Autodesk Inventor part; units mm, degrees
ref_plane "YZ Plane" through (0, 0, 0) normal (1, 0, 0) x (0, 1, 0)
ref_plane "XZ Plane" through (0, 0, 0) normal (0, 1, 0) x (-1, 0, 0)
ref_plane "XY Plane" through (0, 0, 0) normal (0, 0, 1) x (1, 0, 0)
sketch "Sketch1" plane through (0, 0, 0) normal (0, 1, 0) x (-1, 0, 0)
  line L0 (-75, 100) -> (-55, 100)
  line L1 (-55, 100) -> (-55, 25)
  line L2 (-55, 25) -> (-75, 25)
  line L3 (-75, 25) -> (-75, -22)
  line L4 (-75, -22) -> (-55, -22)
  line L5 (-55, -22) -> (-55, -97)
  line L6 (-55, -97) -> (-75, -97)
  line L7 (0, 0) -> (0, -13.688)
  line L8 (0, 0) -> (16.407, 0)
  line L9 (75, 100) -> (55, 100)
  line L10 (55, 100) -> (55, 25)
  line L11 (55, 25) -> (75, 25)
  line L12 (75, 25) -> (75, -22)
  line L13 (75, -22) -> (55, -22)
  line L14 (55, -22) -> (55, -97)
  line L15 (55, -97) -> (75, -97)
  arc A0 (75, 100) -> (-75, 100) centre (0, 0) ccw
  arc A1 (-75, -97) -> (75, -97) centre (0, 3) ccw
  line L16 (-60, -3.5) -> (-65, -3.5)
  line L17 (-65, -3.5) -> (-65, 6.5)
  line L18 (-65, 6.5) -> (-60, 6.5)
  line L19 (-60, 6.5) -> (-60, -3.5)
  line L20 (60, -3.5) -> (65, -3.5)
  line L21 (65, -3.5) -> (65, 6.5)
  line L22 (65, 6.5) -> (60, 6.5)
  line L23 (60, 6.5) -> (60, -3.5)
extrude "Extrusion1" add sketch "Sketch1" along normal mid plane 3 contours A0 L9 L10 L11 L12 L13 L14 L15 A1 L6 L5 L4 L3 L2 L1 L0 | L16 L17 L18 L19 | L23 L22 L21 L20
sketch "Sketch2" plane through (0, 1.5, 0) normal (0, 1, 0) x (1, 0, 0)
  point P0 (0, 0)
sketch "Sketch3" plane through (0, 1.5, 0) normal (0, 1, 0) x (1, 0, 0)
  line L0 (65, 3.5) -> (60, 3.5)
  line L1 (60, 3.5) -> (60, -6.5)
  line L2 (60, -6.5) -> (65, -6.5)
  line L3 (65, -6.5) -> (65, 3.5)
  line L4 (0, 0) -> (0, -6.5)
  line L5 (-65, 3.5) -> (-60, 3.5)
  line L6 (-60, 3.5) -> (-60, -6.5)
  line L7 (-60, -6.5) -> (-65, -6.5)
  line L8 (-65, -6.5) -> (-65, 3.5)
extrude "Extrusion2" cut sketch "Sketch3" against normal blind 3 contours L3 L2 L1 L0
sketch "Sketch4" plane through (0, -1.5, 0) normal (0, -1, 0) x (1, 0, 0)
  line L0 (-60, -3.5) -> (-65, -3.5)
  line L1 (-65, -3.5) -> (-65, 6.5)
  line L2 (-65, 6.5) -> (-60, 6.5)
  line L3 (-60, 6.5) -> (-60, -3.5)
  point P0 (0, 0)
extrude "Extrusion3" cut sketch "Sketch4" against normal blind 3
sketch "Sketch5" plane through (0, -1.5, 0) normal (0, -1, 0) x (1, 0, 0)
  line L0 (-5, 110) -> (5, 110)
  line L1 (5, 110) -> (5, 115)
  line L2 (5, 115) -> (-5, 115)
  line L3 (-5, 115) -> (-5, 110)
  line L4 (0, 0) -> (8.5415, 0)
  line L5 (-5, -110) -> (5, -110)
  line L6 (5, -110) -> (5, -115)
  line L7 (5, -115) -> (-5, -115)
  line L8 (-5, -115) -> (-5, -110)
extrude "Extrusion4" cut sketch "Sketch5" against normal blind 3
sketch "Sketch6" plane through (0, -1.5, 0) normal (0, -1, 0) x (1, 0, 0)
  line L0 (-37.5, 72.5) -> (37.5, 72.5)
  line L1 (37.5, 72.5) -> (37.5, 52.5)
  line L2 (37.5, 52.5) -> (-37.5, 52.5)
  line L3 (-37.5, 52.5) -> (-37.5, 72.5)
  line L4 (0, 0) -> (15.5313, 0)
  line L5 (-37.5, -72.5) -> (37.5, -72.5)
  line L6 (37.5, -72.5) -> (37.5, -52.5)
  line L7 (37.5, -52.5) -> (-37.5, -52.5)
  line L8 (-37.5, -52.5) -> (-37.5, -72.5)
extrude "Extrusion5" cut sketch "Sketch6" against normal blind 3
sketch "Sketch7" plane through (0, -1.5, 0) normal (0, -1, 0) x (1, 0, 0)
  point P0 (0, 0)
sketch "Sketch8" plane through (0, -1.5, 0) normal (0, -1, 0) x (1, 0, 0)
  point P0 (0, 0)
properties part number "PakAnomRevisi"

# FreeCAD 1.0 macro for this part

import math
import FreeCAD as App
import Part
import Sketcher

V = App.Vector
Q = App.Units.Quantity


def add_polygon(sketch, points):
    """Adds a closed chain of lines whose ends are joined by coincident constraints."""
    first, n = sketch.GeometryCount, len(points)
    for a, b in zip(points, points[1:] + points[:1]):
        sketch.addGeometry(Part.LineSegment(App.Vector(*a, 0), App.Vector(*b, 0)), False)
    for i in range(n):
        sketch.addConstraint(Sketcher.Constraint("Coincident", first + i, 2, first + (i + 1) % n, 1))

doc = App.newDocument("Part")
body = doc.addObject("PartDesign::Body", "Body")

sketch1 = doc.addObject("Sketcher::SketchObject", "Sketch")
body.addObject(sketch1)
sketch1.AttachmentSupport = (doc.XZ_Plane, [""])
sketch1.MapMode = "FlatFace"
sketch1.addGeometry(Part.ArcOfCircle(Part.Circle(V(0, 0, 0), V(0, 0, 1), 125), math.radians(53), math.radians(127)), False)
sketch1.addGeometry(Part.LineSegment(V(75, 100, 0), V(55, 100, 0)), False)
sketch1.addGeometry(Part.LineSegment(V(55, 100, 0), V(55, 25, 0)), False)
sketch1.addGeometry(Part.LineSegment(V(55, 25, 0), V(75, 25, 0)), False)
sketch1.addGeometry(Part.LineSegment(V(75, 25, 0), V(75, -22, 0)), False)
sketch1.addGeometry(Part.LineSegment(V(75, -22, 0), V(55, -22, 0)), False)
sketch1.addGeometry(Part.LineSegment(V(55, -22, 0), V(55, -97, 0)), False)
sketch1.addGeometry(Part.LineSegment(V(55, -97, 0), V(75, -97, 0)), False)
sketch1.addGeometry(Part.ArcOfCircle(Part.Circle(V(0, 3, 0), V(0, 0, 1), 125), math.radians(-127), math.radians(-53)), False)
sketch1.addGeometry(Part.LineSegment(V(-75, -97, 0), V(-55, -97, 0)), False)
sketch1.addGeometry(Part.LineSegment(V(-55, -97, 0), V(-55, -22, 0)), False)
sketch1.addGeometry(Part.LineSegment(V(-55, -22, 0), V(-75, -22, 0)), False)
sketch1.addGeometry(Part.LineSegment(V(-75, -22, 0), V(-75, 25, 0)), False)
sketch1.addGeometry(Part.LineSegment(V(-75, 25, 0), V(-55, 25, 0)), False)
sketch1.addGeometry(Part.LineSegment(V(-55, 25, 0), V(-55, 100, 0)), False)
sketch1.addGeometry(Part.LineSegment(V(-55, 100, 0), V(-75, 100, 0)), False)
sketch1.addConstraint(Sketcher.Constraint("Coincident", 0, 1, 1, 1))
sketch1.addConstraint(Sketcher.Constraint("Coincident", 1, 2, 2, 1))
sketch1.addConstraint(Sketcher.Constraint("Coincident", 2, 2, 3, 1))
sketch1.addConstraint(Sketcher.Constraint("Coincident", 3, 2, 4, 1))
sketch1.addConstraint(Sketcher.Constraint("Coincident", 4, 2, 5, 1))
sketch1.addConstraint(Sketcher.Constraint("Coincident", 5, 2, 6, 1))
sketch1.addConstraint(Sketcher.Constraint("Coincident", 6, 2, 7, 1))
sketch1.addConstraint(Sketcher.Constraint("Coincident", 7, 2, 8, 2))
sketch1.addConstraint(Sketcher.Constraint("Coincident", 8, 1, 9, 1))
sketch1.addConstraint(Sketcher.Constraint("Coincident", 9, 2, 10, 1))
sketch1.addConstraint(Sketcher.Constraint("Coincident", 10, 2, 11, 1))
sketch1.addConstraint(Sketcher.Constraint("Coincident", 11, 2, 12, 1))
sketch1.addConstraint(Sketcher.Constraint("Coincident", 12, 2, 13, 1))
sketch1.addConstraint(Sketcher.Constraint("Coincident", 13, 2, 14, 1))
sketch1.addConstraint(Sketcher.Constraint("Coincident", 14, 2, 15, 1))
sketch1.addConstraint(Sketcher.Constraint("Coincident", 15, 2, 0, 2))
sketch1.addConstraint(Sketcher.Constraint("Horizontal", 1))
sketch1.addConstraint(Sketcher.Constraint("Vertical", 2))
sketch1.addConstraint(Sketcher.Constraint("Horizontal", 3))
sketch1.addConstraint(Sketcher.Constraint("Vertical", 4))
sketch1.addConstraint(Sketcher.Constraint("Horizontal", 5))
sketch1.addConstraint(Sketcher.Constraint("Vertical", 6))
sketch1.addConstraint(Sketcher.Constraint("Horizontal", 7))
sketch1.addConstraint(Sketcher.Constraint("Horizontal", 9))
sketch1.addConstraint(Sketcher.Constraint("Vertical", 10))
sketch1.addConstraint(Sketcher.Constraint("Horizontal", 11))
sketch1.addConstraint(Sketcher.Constraint("Vertical", 12))
sketch1.addConstraint(Sketcher.Constraint("Horizontal", 13))
sketch1.addConstraint(Sketcher.Constraint("Vertical", 14))
sketch1.addConstraint(Sketcher.Constraint("Horizontal", 15))
sketch1.addConstraint(Sketcher.Constraint("Coincident", 0, 3, -1, 1))
sketch1.addConstraint(Sketcher.Constraint("Equal", 0, 8))
sketch1.addConstraint(Sketcher.Constraint("Symmetric", 7, 2, 8, 1, -2))
sketch1.addConstraint(Sketcher.Constraint("Symmetric", 5, 2, 10, 2, -2))
sketch1.addConstraint(Sketcher.Constraint("Symmetric", 3, 2, 12, 2, -2))
sketch1.addConstraint(Sketcher.Constraint("Symmetric", 1, 2, 14, 2, -2))
sketch1.addConstraint(Sketcher.Constraint("Vertical", 0, 1, 3, 2))
sketch1.addConstraint(Sketcher.Constraint("Vertical", 2, 2, 5, 2))
sketch1.addConstraint(Sketcher.Constraint("Vertical", 4, 2, 7, 2))
sketch1.addConstraint(Sketcher.Constraint("Equal", 2, 6))
sketch1.addConstraint(Sketcher.Constraint("Radius", 0, Q("125 mm")))
sketch1.addConstraint(Sketcher.Constraint("DistanceX", 1, 2, 1, 1, Q("20 mm")))
sketch1.addConstraint(Sketcher.Constraint("DistanceY", 2, 2, 2, 1, Q("75 mm")))
sketch1.addConstraint(Sketcher.Constraint("DistanceY", 4, 2, 4, 1, Q("47 mm")))
sketch1.addConstraint(Sketcher.Constraint("DistanceY", -1, 1, 8, 3, Q("3 mm")))
pad1 = doc.addObject("PartDesign::Pad", "Pad")
body.addObject(pad1)
pad1.Profile = sketch1
pad1.Length = 3
pad1.Midplane = True

sketch2 = doc.addObject("Sketcher::SketchObject", "Sketch001")
body.addObject(sketch2)
sketch2.AttachmentSupport = (doc.XZ_Plane, [""])
sketch2.MapMode = "FlatFace"
sketch2.AttachmentOffset = App.Placement(V(0, 0, -1.5), App.Rotation())
add_polygon(sketch2, [(65, 6), (65, -4), (60, -4), (60, 6)])
sketch2.addConstraint(Sketcher.Constraint("Vertical", 0))
sketch2.addConstraint(Sketcher.Constraint("Horizontal", 1))
sketch2.addConstraint(Sketcher.Constraint("Vertical", 2))
sketch2.addConstraint(Sketcher.Constraint("Horizontal", 3))
sketch2.addConstraint(Sketcher.Constraint("DistanceX", 1, 2, 1, 1, Q("5 mm")))
sketch2.addConstraint(Sketcher.Constraint("DistanceY", 0, 2, 0, 1, Q("10 mm")))
sketch2.addConstraint(Sketcher.Constraint("DistanceX", -1, 1, 0, 2, Q("65 mm")))
sketch2.addConstraint(Sketcher.Constraint("DistanceY", 0, 2, -1, 1, Q("3.5 mm")))
pocket1 = doc.addObject("PartDesign::Pocket", "Pocket")
body.addObject(pocket1)
pocket1.Profile = sketch2
pocket1.Length = 3
pocket1.Reversed = True

sketch3 = doc.addObject("Sketcher::SketchObject", "Sketch002")
body.addObject(sketch3)
sketch3.AttachmentSupport = (doc.XZ_Plane, [""])
sketch3.MapMode = "FlatFace"
sketch3.AttachmentOffset = App.Placement(V(0, 0, 1.5), App.Rotation())
add_polygon(sketch3, [(-65, -4), (-60, -4), (-60, 6), (-65, 6)])
sketch3.addConstraint(Sketcher.Constraint("Horizontal", 0))
sketch3.addConstraint(Sketcher.Constraint("Vertical", 1))
sketch3.addConstraint(Sketcher.Constraint("Horizontal", 2))
sketch3.addConstraint(Sketcher.Constraint("Vertical", 3))
sketch3.addConstraint(Sketcher.Constraint("DistanceX", 0, 1, 0, 2, Q("5 mm")))
sketch3.addConstraint(Sketcher.Constraint("DistanceY", 1, 1, 1, 2, Q("10 mm")))
sketch3.addConstraint(Sketcher.Constraint("DistanceX", 0, 2, -1, 1, Q("60 mm")))
sketch3.addConstraint(Sketcher.Constraint("DistanceY", 0, 2, -1, 1, Q("3.5 mm")))
pocket2 = doc.addObject("PartDesign::Pocket", "Pocket001")
body.addObject(pocket2)
pocket2.Profile = sketch3
pocket2.Length = 3

sketch4 = doc.addObject("Sketcher::SketchObject", "Sketch003")
body.addObject(sketch4)
sketch4.AttachmentSupport = (doc.XZ_Plane, [""])
sketch4.MapMode = "FlatFace"
sketch4.AttachmentOffset = App.Placement(V(0, 0, 1.5), App.Rotation())
add_polygon(sketch4, [(-5, 115), (-5, 110), (5, 110), (5, 115)])
add_polygon(sketch4, [(5, -110), (-5, -110), (-5, -115), (5, -115)])
sketch4.addConstraint(Sketcher.Constraint("Vertical", 0))
sketch4.addConstraint(Sketcher.Constraint("Horizontal", 1))
sketch4.addConstraint(Sketcher.Constraint("Vertical", 2))
sketch4.addConstraint(Sketcher.Constraint("Horizontal", 3))
sketch4.addConstraint(Sketcher.Constraint("Horizontal", 4))
sketch4.addConstraint(Sketcher.Constraint("Vertical", 5))
sketch4.addConstraint(Sketcher.Constraint("Horizontal", 6))
sketch4.addConstraint(Sketcher.Constraint("Vertical", 7))
sketch4.addConstraint(Sketcher.Constraint("Symmetric", 1, 2, 4, 2, -1, 1))
sketch4.addConstraint(Sketcher.Constraint("Symmetric", 3, 2, 6, 2, -1, 1))
sketch4.addConstraint(Sketcher.Constraint("Vertical", 3, 2, 4, 2))
sketch4.addConstraint(Sketcher.Constraint("DistanceX", 1, 1, 1, 2, Q("10 mm")))
sketch4.addConstraint(Sketcher.Constraint("DistanceY", 0, 2, 0, 1, Q("5 mm")))
sketch4.addConstraint(Sketcher.Constraint("DistanceY", -1, 1, 0, 2, Q("110 mm")))
pocket3 = doc.addObject("PartDesign::Pocket", "Pocket002")
body.addObject(pocket3)
pocket3.Profile = sketch4
pocket3.Length = 3

sketch5 = doc.addObject("Sketcher::SketchObject", "Sketch004")
body.addObject(sketch5)
sketch5.AttachmentSupport = (doc.XZ_Plane, [""])
sketch5.MapMode = "FlatFace"
sketch5.AttachmentOffset = App.Placement(V(0, 0, 1.5), App.Rotation())
add_polygon(sketch5, [(38, 72), (-38, 72), (-38, 52), (38, 52)])
add_polygon(sketch5, [(-38, -52), (-38, -72), (38, -72), (38, -52)])
sketch5.addConstraint(Sketcher.Constraint("Horizontal", 0))
sketch5.addConstraint(Sketcher.Constraint("Vertical", 1))
sketch5.addConstraint(Sketcher.Constraint("Horizontal", 2))
sketch5.addConstraint(Sketcher.Constraint("Vertical", 3))
sketch5.addConstraint(Sketcher.Constraint("Vertical", 4))
sketch5.addConstraint(Sketcher.Constraint("Horizontal", 5))
sketch5.addConstraint(Sketcher.Constraint("Vertical", 6))
sketch5.addConstraint(Sketcher.Constraint("Horizontal", 7))
sketch5.addConstraint(Sketcher.Constraint("Symmetric", 3, 2, 4, 2, -1, 1))
sketch5.addConstraint(Sketcher.Constraint("Symmetric", 1, 2, 6, 2, -1, 1))
sketch5.addConstraint(Sketcher.Constraint("Vertical", 1, 2, 4, 2))
sketch5.addConstraint(Sketcher.Constraint("DistanceX", 0, 2, 0, 1, Q("75 mm")))
sketch5.addConstraint(Sketcher.Constraint("DistanceY", 1, 2, 1, 1, Q("20 mm")))
sketch5.addConstraint(Sketcher.Constraint("DistanceY", 4, 2, 1, 2, Q("125 mm")))
pocket4 = doc.addObject("PartDesign::Pocket", "Pocket003")
body.addObject(pocket4)
pocket4.Profile = sketch5
pocket4.Length = 3

doc.recompute()
